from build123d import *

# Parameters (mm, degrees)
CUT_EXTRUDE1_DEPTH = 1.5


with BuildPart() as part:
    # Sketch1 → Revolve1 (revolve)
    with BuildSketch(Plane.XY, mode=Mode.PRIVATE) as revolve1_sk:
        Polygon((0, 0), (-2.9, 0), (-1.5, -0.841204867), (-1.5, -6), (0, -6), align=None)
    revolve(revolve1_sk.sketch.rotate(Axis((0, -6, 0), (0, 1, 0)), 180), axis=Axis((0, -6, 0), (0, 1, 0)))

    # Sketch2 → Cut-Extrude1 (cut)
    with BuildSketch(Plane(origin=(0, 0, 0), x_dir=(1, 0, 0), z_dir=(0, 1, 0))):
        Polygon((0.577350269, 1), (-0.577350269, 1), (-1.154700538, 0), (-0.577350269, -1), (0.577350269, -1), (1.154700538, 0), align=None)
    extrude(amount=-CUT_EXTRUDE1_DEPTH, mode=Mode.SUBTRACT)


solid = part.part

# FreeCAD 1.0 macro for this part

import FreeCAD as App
import Part
import Sketcher
from FreeCAD import Vector
Q = App.Units.Quantity

doc = App.newDocument("Part")
params = doc.addObject("Spreadsheet::Sheet", "Params")
for row, (alias, value) in enumerate([
    ("sketch1_height", "6 mm"),
    ("sketch1_width", "2.9 mm"),
    ("sketch1_width2", "1.5 mm"),
    ("revolution_angle", "360 deg"),
    ("pocket1_length", "1.5 mm"),
], start=1):
    params.set(f"A{row}", alias)
    params.set(f"B{row}", "=" + value)
    params.setAlias(f"B{row}", alias)

body = doc.addObject("PartDesign::Body", "Body")

# Sketch on XY plane
sketch1 = doc.addObject("Sketcher::SketchObject", "Sketch")
body.addObject(sketch1)
sketch1.AttachmentSupport = (doc.XY_Plane, [""])
sketch1.MapMode = "FlatFace"
sketch1.addGeometry(Part.LineSegment(Vector(0, 0, 0), Vector(-2.9, 0, 0)), False)
sketch1.addGeometry(Part.LineSegment(Vector(-2.9, 0, 0), Vector(-1.5, -0.8, 0)), False)
sketch1.addGeometry(Part.LineSegment(Vector(-1.5, -0.8, 0), Vector(-1.5, -6, 0)), False)
sketch1.addGeometry(Part.LineSegment(Vector(-1.5, -6, 0), Vector(0, -6, 0)), False)
sketch1.addGeometry(Part.LineSegment(Vector(0, -6, 0), Vector(0, 0, 0)), False)
sketch1.addConstraint(Sketcher.Constraint("Coincident", 0, 2, 1, 1))
sketch1.addConstraint(Sketcher.Constraint("Coincident", 1, 2, 2, 1))
sketch1.addConstraint(Sketcher.Constraint("Coincident", 2, 2, 3, 1))
sketch1.addConstraint(Sketcher.Constraint("Coincident", 3, 2, 4, 1))
sketch1.addConstraint(Sketcher.Constraint("Coincident", 4, 2, 0, 1))
sketch1.addConstraint(Sketcher.Constraint("Horizontal", 0))
sketch1.addConstraint(Sketcher.Constraint("Vertical", 2))
sketch1.addConstraint(Sketcher.Constraint("Horizontal", 3))
sketch1.addConstraint(Sketcher.Constraint("Vertical", 4))
sketch1.addConstraint(Sketcher.Constraint("Coincident", 4, 2, -1, 1))
sketch1.addConstraint(Sketcher.Constraint("DistanceY", 4, 1, 4, 2, Q("6 mm")))
sketch1.addConstraint(Sketcher.Constraint("Angle", 1, Q("-31 deg")))
sketch1.addConstraint(Sketcher.Constraint("DistanceX", 0, 2, 0, 1, Q("2.9 mm")))
sketch1.addConstraint(Sketcher.Constraint("DistanceX", 3, 1, 3, 2, Q("1.5 mm")))
sketch1.setExpression("Constraints[10]", "Params.sketch1_height")
sketch1.setExpression("Constraints[12]", "Params.sketch1_width")
sketch1.setExpression("Constraints[13]", "Params.sketch1_width2")
revolution = doc.addObject("PartDesign::Revolution", "Revolution")
body.addObject(revolution)
revolution.Profile = sketch1
revolution.ReferenceAxis = (sketch1, ["V_Axis"])
revolution.setExpression("Angle", "Params.revolution_angle")

# Sketch on XZ plane
sketch2 = doc.addObject("Sketcher::SketchObject", "Sketch001")
body.addObject(sketch2)
sketch2.AttachmentSupport = (doc.XZ_Plane, [""])
sketch2.MapMode = "FlatFace"
sketch2.addGeometry(Part.LineSegment(Vector(0.6, -1, 0), Vector(-0.6, -1, 0)), False)
sketch2.addGeometry(Part.LineSegment(Vector(-0.6, -1, 0), Vector(-1.2, 0, 0)), False)
sketch2.addGeometry(Part.LineSegment(Vector(-1.2, 0, 0), Vector(-0.6, 1, 0)), False)
sketch2.addGeometry(Part.LineSegment(Vector(-0.6, 1, 0), Vector(0.6, 1, 0)), False)
sketch2.addGeometry(Part.LineSegment(Vector(0.6, 1, 0), Vector(1.2, 0, 0)), False)
sketch2.addGeometry(Part.LineSegment(Vector(1.2, 0, 0), Vector(0.6, -1, 0)), False)
sketch2.addConstraint(Sketcher.Constraint("Coincident", 0, 2, 1, 1))
sketch2.addConstraint(Sketcher.Constraint("Coincident", 1, 2, 2, 1))
sketch2.addConstraint(Sketcher.Constraint("Coincident", 2, 2, 3, 1))
sketch2.addConstraint(Sketcher.Constraint("Coincident", 3, 2, 4, 1))
sketch2.addConstraint(Sketcher.Constraint("Coincident", 4, 2, 5, 1))
sketch2.addConstraint(Sketcher.Constraint("Coincident", 5, 2, 0, 1))
sketch2.addConstraint(Sketcher.Constraint("Horizontal", 0))
sketch2.addConstraint(Sketcher.Constraint("Horizontal", 3))
sketch2.addConstraint(Sketcher.Constraint("Symmetric", 0, 2, 3, 2, -1, 1))
sketch2.addConstraint(Sketcher.Constraint("Symmetric", 1, 2, 4, 2, -1, 1))
sketch2.addConstraint(Sketcher.Constraint("PointOnObject", 1, 2, -1))
sketch2.addConstraint(Sketcher.Constraint("Parallel", 2, 5))
sketch2.addConstraint(Sketcher.Constraint("Vertical", 0, 2, 2, 2))
sketch2.addConstraint(Sketcher.Constraint("Angle", 1, Q("120 deg")))
sketch2.addConstraint(Sketcher.Constraint("DistanceY", 0, 2, -1, 1, Q("1 mm")))
sketch2.addConstraint(Sketcher.Constraint("DistanceX", 0, 2, 0, 1, Q("1.154701 mm")))
pocket1 = doc.addObject("PartDesign::Pocket", "Pocket")
body.addObject(pocket1)
pocket1.Profile = sketch2
pocket1.setExpression("Length", "Params.pocket1_length")
pocket1.Reversed = True

doc.recompute()
